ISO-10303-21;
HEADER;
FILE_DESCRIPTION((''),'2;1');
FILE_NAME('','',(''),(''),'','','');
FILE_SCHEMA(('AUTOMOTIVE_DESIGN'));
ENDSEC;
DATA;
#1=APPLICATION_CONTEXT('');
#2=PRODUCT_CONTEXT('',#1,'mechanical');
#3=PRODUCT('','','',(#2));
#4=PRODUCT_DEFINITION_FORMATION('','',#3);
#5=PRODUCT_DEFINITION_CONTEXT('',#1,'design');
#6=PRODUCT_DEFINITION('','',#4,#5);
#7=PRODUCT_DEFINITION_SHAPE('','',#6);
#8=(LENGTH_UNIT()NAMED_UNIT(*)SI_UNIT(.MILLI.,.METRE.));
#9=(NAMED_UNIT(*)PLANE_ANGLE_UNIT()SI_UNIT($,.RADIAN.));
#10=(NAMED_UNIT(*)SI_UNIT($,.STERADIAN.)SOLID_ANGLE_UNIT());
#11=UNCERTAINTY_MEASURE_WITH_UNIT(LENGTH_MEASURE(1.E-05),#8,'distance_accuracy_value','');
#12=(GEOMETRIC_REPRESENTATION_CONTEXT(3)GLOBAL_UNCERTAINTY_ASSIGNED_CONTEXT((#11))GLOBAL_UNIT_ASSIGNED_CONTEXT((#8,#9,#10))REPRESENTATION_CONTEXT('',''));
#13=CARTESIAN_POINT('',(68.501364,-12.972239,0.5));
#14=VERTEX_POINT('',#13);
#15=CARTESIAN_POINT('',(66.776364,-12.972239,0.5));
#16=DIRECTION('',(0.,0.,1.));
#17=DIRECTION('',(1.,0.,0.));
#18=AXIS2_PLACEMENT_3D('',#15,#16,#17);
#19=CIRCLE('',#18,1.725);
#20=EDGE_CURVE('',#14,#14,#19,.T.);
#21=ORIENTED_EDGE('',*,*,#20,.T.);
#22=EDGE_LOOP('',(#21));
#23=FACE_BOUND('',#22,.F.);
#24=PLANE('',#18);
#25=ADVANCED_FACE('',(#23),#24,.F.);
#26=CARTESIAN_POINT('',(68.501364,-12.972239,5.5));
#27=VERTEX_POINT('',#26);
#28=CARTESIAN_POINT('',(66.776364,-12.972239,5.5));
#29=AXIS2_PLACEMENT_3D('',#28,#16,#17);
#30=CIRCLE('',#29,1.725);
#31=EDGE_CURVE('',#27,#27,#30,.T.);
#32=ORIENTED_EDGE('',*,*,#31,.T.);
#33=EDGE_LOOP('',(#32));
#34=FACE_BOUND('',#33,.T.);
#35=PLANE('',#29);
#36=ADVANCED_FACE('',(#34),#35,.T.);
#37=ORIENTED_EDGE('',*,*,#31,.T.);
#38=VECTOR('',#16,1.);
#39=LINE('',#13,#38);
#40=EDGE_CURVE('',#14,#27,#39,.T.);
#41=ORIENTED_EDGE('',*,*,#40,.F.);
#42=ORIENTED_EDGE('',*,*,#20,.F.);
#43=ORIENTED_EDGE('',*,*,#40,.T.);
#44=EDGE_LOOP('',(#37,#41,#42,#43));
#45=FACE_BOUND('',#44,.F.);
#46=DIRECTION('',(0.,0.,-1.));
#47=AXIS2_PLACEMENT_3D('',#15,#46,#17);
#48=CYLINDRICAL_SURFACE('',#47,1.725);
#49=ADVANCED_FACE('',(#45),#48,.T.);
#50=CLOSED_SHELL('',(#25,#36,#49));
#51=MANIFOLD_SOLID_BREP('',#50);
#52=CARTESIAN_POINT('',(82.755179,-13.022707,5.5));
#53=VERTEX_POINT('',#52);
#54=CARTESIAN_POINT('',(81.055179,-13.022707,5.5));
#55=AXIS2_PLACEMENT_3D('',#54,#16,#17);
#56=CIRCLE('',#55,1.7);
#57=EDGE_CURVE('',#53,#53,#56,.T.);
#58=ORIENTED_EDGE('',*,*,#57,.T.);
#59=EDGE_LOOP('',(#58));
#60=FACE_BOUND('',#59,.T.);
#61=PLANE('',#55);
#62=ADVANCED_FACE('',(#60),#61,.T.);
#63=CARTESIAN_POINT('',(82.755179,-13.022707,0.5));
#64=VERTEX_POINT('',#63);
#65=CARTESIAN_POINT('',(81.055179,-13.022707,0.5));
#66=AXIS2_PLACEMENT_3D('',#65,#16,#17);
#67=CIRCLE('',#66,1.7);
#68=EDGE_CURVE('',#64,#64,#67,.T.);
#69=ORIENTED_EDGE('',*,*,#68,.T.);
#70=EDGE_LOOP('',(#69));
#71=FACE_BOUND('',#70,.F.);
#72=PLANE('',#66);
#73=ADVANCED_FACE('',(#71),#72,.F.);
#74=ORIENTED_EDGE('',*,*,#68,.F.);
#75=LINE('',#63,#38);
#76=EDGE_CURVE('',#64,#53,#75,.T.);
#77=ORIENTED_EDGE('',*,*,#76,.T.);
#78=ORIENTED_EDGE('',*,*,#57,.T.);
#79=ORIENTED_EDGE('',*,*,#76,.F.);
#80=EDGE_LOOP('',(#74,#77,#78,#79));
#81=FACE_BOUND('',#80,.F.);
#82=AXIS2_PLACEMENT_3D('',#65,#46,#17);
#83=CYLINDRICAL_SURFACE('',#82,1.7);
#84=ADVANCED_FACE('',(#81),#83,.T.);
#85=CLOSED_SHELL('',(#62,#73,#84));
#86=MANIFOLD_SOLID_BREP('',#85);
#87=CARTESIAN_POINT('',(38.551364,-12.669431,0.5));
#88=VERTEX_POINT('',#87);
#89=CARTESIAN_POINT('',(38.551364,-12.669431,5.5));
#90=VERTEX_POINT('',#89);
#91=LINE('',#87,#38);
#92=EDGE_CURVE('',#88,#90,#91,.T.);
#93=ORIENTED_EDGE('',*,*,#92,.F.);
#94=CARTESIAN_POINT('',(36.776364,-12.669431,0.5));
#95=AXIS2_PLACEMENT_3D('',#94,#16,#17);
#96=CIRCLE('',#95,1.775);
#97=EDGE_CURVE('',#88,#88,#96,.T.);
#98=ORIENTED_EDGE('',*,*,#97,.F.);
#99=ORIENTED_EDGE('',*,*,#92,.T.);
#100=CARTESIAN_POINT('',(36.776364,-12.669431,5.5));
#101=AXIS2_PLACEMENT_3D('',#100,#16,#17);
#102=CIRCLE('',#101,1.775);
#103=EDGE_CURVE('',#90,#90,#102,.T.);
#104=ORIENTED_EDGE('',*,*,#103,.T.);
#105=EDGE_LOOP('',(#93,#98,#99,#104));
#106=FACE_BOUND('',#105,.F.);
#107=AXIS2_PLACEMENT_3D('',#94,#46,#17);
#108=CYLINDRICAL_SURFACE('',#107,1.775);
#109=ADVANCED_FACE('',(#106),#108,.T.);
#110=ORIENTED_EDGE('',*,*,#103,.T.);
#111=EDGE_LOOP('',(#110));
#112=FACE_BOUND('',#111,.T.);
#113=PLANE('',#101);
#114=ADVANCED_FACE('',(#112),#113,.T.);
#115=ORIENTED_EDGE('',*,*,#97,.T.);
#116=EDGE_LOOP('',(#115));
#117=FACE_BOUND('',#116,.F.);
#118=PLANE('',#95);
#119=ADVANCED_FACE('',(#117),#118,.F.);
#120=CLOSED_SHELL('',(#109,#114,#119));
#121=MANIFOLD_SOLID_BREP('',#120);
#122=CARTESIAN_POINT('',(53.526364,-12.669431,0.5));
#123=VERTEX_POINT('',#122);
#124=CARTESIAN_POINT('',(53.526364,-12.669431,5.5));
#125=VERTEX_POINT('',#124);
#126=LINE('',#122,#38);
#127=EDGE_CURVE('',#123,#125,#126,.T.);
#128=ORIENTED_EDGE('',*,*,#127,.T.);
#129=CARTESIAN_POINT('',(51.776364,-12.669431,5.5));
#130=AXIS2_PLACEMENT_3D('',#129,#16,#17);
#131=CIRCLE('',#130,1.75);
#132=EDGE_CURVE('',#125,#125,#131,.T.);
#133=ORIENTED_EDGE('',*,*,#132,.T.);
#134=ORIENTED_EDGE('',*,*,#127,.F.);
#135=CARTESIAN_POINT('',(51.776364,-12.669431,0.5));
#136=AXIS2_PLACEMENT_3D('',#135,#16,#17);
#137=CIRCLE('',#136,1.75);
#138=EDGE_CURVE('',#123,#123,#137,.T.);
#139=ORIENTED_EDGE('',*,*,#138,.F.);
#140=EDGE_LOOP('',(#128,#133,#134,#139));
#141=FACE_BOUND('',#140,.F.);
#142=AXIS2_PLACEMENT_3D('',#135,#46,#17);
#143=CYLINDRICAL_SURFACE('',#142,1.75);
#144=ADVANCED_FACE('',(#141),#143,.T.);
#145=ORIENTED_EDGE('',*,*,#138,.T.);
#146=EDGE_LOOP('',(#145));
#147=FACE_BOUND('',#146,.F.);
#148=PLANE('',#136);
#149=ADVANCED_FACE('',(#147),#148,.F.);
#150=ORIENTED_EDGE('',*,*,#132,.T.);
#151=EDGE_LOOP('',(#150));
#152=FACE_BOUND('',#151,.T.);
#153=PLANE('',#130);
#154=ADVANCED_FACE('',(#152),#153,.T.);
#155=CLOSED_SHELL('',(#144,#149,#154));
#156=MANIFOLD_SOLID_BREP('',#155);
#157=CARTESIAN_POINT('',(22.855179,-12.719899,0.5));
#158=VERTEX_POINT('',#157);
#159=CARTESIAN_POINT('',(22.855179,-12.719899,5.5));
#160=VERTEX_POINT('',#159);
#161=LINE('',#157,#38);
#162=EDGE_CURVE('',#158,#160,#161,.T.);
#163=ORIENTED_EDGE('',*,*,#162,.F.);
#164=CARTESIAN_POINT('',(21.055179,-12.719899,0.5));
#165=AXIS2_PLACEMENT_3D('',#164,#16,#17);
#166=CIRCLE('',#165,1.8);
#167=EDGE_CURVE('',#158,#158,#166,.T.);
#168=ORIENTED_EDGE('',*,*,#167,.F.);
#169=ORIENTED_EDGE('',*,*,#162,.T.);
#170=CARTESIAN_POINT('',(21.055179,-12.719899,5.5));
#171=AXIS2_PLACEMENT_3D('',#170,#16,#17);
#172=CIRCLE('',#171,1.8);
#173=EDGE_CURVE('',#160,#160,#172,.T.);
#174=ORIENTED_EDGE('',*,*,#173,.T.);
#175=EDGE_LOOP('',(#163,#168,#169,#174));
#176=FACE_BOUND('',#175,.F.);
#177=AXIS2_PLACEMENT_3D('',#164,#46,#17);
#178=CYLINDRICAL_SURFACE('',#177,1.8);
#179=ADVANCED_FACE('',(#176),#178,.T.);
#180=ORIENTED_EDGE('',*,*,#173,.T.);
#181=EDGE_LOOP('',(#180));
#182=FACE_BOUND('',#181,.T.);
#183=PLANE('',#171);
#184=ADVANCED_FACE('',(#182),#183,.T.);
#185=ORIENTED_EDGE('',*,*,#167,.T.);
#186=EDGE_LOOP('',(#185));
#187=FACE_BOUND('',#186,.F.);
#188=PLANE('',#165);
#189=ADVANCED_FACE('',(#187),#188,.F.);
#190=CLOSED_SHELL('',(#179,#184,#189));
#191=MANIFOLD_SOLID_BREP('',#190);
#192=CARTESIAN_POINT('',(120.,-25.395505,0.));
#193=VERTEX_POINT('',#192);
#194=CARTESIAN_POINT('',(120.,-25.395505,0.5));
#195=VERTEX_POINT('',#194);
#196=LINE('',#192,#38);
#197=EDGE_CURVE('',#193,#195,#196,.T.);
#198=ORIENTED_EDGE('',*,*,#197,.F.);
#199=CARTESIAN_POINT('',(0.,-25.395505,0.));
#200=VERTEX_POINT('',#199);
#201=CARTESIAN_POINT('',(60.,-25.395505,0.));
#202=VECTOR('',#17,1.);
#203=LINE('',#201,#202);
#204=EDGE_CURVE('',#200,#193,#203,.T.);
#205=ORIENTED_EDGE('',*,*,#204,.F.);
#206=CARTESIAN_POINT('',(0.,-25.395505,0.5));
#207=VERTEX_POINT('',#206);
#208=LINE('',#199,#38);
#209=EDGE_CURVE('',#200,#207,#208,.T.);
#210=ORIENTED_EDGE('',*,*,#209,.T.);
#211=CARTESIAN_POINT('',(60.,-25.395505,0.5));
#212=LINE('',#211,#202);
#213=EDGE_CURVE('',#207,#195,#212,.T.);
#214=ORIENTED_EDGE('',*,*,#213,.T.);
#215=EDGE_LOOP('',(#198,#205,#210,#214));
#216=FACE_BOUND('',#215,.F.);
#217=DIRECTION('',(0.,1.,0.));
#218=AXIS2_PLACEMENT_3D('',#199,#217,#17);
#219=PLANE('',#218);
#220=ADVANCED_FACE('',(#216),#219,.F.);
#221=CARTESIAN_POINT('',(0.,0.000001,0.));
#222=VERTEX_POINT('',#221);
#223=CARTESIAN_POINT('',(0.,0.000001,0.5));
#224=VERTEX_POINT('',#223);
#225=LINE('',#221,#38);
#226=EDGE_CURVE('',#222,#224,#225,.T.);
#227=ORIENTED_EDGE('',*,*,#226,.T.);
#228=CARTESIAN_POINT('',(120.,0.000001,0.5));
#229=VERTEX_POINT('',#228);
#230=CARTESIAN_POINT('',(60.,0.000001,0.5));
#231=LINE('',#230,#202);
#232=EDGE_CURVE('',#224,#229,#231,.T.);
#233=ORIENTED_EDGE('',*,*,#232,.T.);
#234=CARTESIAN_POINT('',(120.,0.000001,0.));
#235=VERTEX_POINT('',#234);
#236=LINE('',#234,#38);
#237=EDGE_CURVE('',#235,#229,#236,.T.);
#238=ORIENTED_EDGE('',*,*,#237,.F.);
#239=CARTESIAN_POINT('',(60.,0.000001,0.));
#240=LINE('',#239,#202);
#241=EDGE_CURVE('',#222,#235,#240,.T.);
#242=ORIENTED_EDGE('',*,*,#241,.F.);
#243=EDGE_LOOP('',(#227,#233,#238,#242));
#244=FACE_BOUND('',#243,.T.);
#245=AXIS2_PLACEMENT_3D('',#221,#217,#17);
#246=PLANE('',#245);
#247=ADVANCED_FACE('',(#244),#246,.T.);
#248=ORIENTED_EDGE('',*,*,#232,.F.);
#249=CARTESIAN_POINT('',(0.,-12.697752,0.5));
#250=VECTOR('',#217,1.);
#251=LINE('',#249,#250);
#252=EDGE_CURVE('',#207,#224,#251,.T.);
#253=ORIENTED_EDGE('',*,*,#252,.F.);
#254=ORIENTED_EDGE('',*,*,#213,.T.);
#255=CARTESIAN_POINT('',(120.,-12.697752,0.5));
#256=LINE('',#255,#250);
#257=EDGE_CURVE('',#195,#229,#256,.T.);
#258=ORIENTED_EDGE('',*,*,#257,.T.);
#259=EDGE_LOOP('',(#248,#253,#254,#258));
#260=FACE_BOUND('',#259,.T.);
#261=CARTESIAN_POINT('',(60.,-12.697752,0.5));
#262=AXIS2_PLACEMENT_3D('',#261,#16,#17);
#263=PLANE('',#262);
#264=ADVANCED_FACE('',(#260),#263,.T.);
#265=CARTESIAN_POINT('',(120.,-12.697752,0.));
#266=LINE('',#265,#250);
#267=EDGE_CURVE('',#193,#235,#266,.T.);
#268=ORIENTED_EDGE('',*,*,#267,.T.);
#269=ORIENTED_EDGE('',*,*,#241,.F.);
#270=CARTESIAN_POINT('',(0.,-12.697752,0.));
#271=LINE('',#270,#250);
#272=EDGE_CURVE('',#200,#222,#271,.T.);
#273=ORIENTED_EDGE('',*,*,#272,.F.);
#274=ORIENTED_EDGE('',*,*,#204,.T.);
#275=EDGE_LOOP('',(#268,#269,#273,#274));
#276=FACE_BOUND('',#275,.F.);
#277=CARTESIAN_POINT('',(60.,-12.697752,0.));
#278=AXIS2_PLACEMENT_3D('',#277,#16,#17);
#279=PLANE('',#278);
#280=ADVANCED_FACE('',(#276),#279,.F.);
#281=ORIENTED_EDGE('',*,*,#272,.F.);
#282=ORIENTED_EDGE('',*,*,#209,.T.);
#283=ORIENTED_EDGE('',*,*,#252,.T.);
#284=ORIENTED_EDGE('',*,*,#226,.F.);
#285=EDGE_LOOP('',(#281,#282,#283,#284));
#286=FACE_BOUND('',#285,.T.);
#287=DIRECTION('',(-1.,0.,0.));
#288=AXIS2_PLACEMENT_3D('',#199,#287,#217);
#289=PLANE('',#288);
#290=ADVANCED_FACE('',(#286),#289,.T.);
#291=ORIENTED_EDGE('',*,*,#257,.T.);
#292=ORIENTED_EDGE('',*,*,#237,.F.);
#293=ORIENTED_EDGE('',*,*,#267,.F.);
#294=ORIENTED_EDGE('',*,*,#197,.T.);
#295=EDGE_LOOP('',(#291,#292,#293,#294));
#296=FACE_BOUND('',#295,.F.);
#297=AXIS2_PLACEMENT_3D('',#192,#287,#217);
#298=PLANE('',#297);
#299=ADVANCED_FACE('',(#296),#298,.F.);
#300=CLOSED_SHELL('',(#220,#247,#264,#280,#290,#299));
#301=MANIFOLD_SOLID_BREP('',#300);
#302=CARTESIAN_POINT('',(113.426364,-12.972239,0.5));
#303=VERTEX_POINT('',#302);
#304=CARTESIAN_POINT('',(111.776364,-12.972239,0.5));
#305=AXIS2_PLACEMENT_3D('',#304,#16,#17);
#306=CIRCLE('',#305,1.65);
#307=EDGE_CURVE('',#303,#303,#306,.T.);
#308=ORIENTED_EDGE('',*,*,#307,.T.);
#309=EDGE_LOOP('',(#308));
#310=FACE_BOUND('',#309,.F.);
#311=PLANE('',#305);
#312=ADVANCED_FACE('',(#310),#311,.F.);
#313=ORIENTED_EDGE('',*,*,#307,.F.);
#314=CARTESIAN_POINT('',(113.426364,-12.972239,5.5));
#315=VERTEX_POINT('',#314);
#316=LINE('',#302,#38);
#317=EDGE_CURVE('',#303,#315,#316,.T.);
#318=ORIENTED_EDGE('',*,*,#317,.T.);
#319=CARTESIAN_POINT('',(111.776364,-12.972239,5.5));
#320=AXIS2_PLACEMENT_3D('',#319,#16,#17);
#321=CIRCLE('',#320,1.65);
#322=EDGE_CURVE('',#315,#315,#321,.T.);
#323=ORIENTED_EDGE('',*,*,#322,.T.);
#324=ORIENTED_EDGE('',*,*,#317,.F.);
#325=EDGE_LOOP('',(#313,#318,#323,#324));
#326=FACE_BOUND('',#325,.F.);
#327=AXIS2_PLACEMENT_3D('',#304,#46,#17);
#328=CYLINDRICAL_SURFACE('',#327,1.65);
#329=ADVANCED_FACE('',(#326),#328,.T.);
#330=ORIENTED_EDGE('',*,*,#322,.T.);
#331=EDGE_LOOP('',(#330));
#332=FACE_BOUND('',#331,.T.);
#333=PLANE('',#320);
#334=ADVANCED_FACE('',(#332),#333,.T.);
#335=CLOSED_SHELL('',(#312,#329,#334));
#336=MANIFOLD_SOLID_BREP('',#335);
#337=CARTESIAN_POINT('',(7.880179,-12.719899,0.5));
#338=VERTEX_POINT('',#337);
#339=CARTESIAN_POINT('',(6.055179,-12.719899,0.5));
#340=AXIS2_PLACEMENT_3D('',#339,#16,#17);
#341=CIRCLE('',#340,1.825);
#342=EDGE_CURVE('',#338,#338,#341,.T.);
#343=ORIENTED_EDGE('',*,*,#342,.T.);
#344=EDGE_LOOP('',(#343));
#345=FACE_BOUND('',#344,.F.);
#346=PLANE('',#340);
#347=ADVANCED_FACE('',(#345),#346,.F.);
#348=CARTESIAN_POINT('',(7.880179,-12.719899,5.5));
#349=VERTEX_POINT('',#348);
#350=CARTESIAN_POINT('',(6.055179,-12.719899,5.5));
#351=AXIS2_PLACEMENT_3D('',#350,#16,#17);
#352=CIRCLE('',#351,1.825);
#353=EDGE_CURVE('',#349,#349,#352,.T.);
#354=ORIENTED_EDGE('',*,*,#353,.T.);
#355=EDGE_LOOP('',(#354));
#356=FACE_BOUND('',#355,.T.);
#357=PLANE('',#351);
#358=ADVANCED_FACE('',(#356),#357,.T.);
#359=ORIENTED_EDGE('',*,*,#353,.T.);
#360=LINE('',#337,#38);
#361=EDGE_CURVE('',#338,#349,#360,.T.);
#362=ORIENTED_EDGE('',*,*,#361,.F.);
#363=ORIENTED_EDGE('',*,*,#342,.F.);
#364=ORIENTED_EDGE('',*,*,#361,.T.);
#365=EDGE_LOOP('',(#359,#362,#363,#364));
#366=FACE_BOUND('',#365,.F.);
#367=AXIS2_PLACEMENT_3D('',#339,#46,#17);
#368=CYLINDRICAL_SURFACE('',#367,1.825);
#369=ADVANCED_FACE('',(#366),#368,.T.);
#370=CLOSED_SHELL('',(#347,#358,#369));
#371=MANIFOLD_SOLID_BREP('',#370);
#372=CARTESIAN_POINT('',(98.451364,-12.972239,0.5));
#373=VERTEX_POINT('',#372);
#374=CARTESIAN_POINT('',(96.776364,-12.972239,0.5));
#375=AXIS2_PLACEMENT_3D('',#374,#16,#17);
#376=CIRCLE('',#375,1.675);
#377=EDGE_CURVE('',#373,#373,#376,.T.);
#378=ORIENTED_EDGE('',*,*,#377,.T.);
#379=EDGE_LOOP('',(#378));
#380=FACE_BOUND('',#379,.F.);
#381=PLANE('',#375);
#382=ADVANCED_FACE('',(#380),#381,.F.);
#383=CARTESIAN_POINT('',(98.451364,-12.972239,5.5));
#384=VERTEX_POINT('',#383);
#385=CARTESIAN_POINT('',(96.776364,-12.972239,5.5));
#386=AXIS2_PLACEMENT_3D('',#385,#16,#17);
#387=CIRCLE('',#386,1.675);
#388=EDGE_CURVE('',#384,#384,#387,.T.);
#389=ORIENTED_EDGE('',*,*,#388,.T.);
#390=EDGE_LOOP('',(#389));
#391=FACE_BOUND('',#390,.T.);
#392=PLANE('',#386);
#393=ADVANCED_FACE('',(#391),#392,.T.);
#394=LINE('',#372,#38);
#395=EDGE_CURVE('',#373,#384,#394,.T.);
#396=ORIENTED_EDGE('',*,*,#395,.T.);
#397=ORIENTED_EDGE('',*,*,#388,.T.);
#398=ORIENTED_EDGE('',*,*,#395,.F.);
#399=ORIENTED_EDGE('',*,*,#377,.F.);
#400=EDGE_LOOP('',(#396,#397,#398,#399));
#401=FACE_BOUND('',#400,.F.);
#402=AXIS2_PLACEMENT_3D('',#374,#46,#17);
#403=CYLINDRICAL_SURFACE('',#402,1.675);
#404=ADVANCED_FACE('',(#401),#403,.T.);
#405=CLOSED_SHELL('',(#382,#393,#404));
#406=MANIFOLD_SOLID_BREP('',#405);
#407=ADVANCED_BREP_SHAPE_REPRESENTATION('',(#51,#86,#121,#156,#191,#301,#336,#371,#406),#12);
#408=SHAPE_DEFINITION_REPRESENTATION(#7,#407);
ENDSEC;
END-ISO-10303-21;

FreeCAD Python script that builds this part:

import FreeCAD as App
import Part
import Sketcher

V = App.Vector

doc = App.newDocument("Part")
body = doc.addObject("PartDesign::Body", "Body")

# Sketch on XY plane
sketch1 = doc.addObject("Sketcher::SketchObject", "Sketch")
body.addObject(sketch1)
sketch1.AttachmentSupport = (doc.XY_Plane, [""])
sketch1.MapMode = "FlatFace"
sketch1.addGeometry(Part.LineSegment(V(0, 0, 0), V(0, -25, 0)), False)
sketch1.addGeometry(Part.LineSegment(V(0, -25, 0), V(120, -25, 0)), False)
sketch1.addGeometry(Part.LineSegment(V(120, -25, 0), V(120, 0, 0)), False)
sketch1.addGeometry(Part.LineSegment(V(120, 0, 0), V(0, 0, 0)), False)
sketch1.addConstraint(Sketcher.Constraint("Coincident", 0, 2, 1, 1))
sketch1.addConstraint(Sketcher.Constraint("Coincident", 1, 2, 2, 1))
sketch1.addConstraint(Sketcher.Constraint("Coincident", 2, 2, 3, 1))
sketch1.addConstraint(Sketcher.Constraint("Coincident", 3, 2, 0, 1))
sketch1.addConstraint(Sketcher.Constraint("Vertical", 0))
sketch1.addConstraint(Sketcher.Constraint("Horizontal", 1))
sketch1.addConstraint(Sketcher.Constraint("Vertical", 2))
sketch1.addConstraint(Sketcher.Constraint("Horizontal", 3))
sketch1.addConstraint(Sketcher.Constraint("Coincident", 3, 2, -1, 1))
sketch1.addConstraint(Sketcher.Constraint("DistanceX", 1, 1, 1, 2, 120.0))
sketch1.addConstraint(Sketcher.Constraint("DistanceY", 0, 2, 0, 1, 25.395505))
pad1 = doc.addObject("PartDesign::Pad", "Pad")
body.addObject(pad1)
pad1.Profile = sketch1
pad1.Length = 0.5
body2 = doc.addObject("PartDesign::Body", "Body001")
body2.AllowCompound = True

# Sketch on XY plane
sketch2 = doc.addObject("Sketcher::SketchObject", "Sketch001")
body2.addObject(sketch2)
sketch2.AttachmentSupport = (doc.getObject("XY_Plane001"), [""])
sketch2.MapMode = "FlatFace"
sketch2.AttachmentOffset = App.Placement(V(0, 0, 0.5), App.Rotation())
sketch2.addGeometry(Part.Circle(V(36.8, -12.7, 0), V(0, 0, 1), 1.8), False)
sketch2.addGeometry(Part.Circle(V(51.8, -12.7, 0), V(0, 0, 1), 1.8), False)
sketch2.addGeometry(Part.Circle(V(66.8, -13, 0), V(0, 0, 1), 1.7), False)
sketch2.addGeometry(Part.Circle(V(96.8, -13, 0), V(0, 0, 1), 1.7), False)
sketch2.addGeometry(Part.Circle(V(111.8, -13, 0), V(0, 0, 1), 1.6), False)
sketch2.addGeometry(Part.Circle(V(6.1, -12.7, 0), V(0, 0, 1), 1.8), False)
sketch2.addGeometry(Part.Circle(V(21.1, -12.7, 0), V(0, 0, 1), 1.8), False)
sketch2.addGeometry(Part.Circle(V(81.1, -13, 0), V(0, 0, 1), 1.7), False)
sketch2.addConstraint(Sketcher.Constraint("Horizontal", 0, 3, 1, 3))
sketch2.addConstraint(Sketcher.Constraint("Horizontal", 2, 3, 3, 3))
sketch2.addConstraint(Sketcher.Constraint("Horizontal", 3, 3, 4, 3))
sketch2.addConstraint(Sketcher.Constraint("Horizontal", 5, 3, 6, 3))
sketch2.addConstraint(Sketcher.Constraint("Diameter", 1, 3.5))
sketch2.addConstraint(Sketcher.Constraint("Diameter", 4, 3.3))
sketch2.addConstraint(Sketcher.Constraint("Diameter", 6, 3.6))
sketch2.addConstraint(Sketcher.Constraint("Diameter", 7, 3.4))
sketch2.addConstraint(Sketcher.Constraint("Diameter", 0, 3.55))
sketch2.addConstraint(Sketcher.Constraint("Diameter", 2, 3.45))
sketch2.addConstraint(Sketcher.Constraint("Diameter", 3, 3.35))
sketch2.addConstraint(Sketcher.Constraint("Diameter", 5, 3.65))
sketch2.addConstraint(Sketcher.Constraint("DistanceX", 0, 3, 1, 3, 15.0))
sketch2.addConstraint(Sketcher.Constraint("DistanceX", 1, 3, 2, 3, 15.0))
sketch2.addConstraint(Sketcher.Constraint("DistanceX", 2, 3, 3, 3, 30.0))
sketch2.addConstraint(Sketcher.Constraint("DistanceX", 3, 3, 4, 3, 15.0))
sketch2.addConstraint(Sketcher.Constraint("DistanceX", 5, 3, 6, 3, 15.0))
sketch2.addConstraint(Sketcher.Constraint("DistanceY", 5, 3, -1, 1, 12.719899))
sketch2.addConstraint(Sketcher.Constraint("DistanceY", 0, 3, -1, 1, 12.669431))
sketch2.addConstraint(Sketcher.Constraint("DistanceY", 2, 3, -1, 1, 12.972239))
sketch2.addConstraint(Sketcher.Constraint("DistanceX", -1, 1, 5, 3, 6.055179))
sketch2.addConstraint(Sketcher.Constraint("DistanceX", -1, 1, 7, 3, 81.055179))
sketch2.addConstraint(Sketcher.Constraint("DistanceY", 7, 3, 2, 3, 0.050468))
sketch2.addConstraint(Sketcher.Constraint("DistanceX", -1, 1, 0, 3, 36.776364))
pad2 = doc.addObject("PartDesign::Pad", "Pad001")
body2.addObject(pad2)
pad2.Profile = sketch2
pad2.Length = 5

doc.recompute()
